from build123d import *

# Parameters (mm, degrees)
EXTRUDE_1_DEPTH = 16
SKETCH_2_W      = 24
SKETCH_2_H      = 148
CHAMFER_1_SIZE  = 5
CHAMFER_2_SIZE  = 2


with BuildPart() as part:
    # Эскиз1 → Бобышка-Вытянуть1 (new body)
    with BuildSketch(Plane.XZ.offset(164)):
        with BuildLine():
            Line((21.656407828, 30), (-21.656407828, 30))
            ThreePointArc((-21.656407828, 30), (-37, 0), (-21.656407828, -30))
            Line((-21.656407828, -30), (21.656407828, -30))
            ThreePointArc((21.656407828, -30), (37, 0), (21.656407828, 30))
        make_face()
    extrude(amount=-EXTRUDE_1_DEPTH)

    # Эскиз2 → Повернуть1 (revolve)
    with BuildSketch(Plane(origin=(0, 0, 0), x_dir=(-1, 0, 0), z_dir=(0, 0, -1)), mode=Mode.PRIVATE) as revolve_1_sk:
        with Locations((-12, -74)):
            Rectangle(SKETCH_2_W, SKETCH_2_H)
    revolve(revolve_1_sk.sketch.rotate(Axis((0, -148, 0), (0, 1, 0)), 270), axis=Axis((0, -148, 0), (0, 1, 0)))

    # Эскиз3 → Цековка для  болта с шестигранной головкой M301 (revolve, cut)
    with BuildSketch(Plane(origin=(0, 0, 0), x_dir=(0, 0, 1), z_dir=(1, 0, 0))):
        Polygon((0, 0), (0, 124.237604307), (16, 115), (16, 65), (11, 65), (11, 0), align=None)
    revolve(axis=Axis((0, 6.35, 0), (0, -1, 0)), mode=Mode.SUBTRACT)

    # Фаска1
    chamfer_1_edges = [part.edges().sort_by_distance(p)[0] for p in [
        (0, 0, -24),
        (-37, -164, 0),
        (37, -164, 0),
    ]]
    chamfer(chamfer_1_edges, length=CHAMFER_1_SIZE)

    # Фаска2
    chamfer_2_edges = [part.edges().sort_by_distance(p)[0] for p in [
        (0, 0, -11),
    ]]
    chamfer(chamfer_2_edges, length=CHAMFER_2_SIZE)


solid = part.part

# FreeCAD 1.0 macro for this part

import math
import FreeCAD as App
import Part
import Sketcher
from FreeCAD import Vector
Q = App.Units.Quantity


def edges_at(feature, points):
    """Names of the edges that pass closest to the given points."""
    edges = feature.Shape.Edges
    near = lambda p: min(range(len(edges)), key=lambda i: edges[i].distToShape(Part.Vertex(*p))[0])
    return sorted({f"Edge{near(p) + 1}" for p in points})

doc = App.newDocument("Part")
params = doc.addObject("Spreadsheet::Sheet", "Params")
for row, (alias, value) in enumerate([
    ("sketch1_radius", "37 mm"),
    ("pad1_length", "16 mm"),
    ("sketch2_width", "24 mm"),
    ("sketch2_height", "148 mm"),
    ("revolution_angle", "360 deg"),
    ("sketch3_width", "65 mm"),
    ("sketch3_width2", "50 mm"),
    ("sketch3_height", "11 mm"),
    ("sketch3_height2", "5 mm"),
    ("groove_angle", "360 deg"),
    ("chamfer_size", "5 mm"),
    ("chamfer2_size", "2 mm"),
], start=1):
    params.set(f"A{row}", alias)
    params.set(f"B{row}", "=" + value)
    params.setAlias(f"B{row}", alias)

body = doc.addObject("PartDesign::Body", "Body")

# Sketch on XZ plane
sketch1 = body.newObject("Sketcher::SketchObject", "Sketch")
sketch1.AttachmentSupport = (doc.getObject("XZ_Plane"), [""])
sketch1.MapMode = "FlatFace"
sketch1.AttachmentOffset = App.Placement(Vector(0, 0, 164), App.Rotation())
sketch1.addGeometry([
    Part.LineSegment(Vector(22, 30, 0), Vector(-22, 30, 0)),
    Part.ArcOfCircle(Part.Circle(Vector(0, 0, 0), Vector(0, 0, 1), 37), math.radians(126), math.radians(234)),
    Part.LineSegment(Vector(-22, -30, 0), Vector(22, -30, 0)),
    Part.ArcOfCircle(Part.Circle(Vector(0, 0, 0), Vector(0, 0, 1), 37), math.radians(-54), math.radians(54)),
], False)
sketch1.addConstraint([
    Sketcher.Constraint("Coincident", 0, 2, 1, 1),
    Sketcher.Constraint("Coincident", 1, 2, 2, 1),
    Sketcher.Constraint("Coincident", 2, 2, 3, 1),
    Sketcher.Constraint("Coincident", 3, 2, 0, 1),
    Sketcher.Constraint("Horizontal", 0),
    Sketcher.Constraint("Horizontal", 2),
    Sketcher.Constraint("Coincident", 1, 3, -1, 1),
    Sketcher.Constraint("Coincident", 3, 3, -1, 1),
    Sketcher.Constraint("Equal", 1, 3),
    Sketcher.Constraint("Vertical", 0, 2, 1, 2),
    Sketcher.Constraint("Radius", 1, Q("37 mm")),
    Sketcher.Constraint("DistanceY", -1, 1, 0, 2, Q("30 mm")),
])
sketch1.setExpression("Constraints[10]", "Params.sketch1_radius")
pad1 = body.newObject("PartDesign::Pad", "Pad")
pad1.Profile = sketch1
pad1.setExpression("Length", "Params.pad1_length")
pad1.Reversed = True

# Sketch on XY plane
sketch2 = body.newObject("Sketcher::SketchObject", "Sketch001")
sketch2.AttachmentSupport = (doc.getObject("XY_Plane"), [""])
sketch2.MapMode = "FlatFace"
sketch2.addGeometry([
    Part.LineSegment(Vector(24, 0, 0), Vector(24, -148, 0)),
    Part.LineSegment(Vector(24, -148, 0), Vector(0, -148, 0)),
    Part.LineSegment(Vector(0, -148, 0), Vector(0, 0, 0)),
    Part.LineSegment(Vector(0, 0, 0), Vector(24, 0, 0)),
], False)
sketch2.addConstraint([
    Sketcher.Constraint("Coincident", 0, 2, 1, 1),
    Sketcher.Constraint("Coincident", 1, 2, 2, 1),
    Sketcher.Constraint("Coincident", 2, 2, 3, 1),
    Sketcher.Constraint("Coincident", 3, 2, 0, 1),
    Sketcher.Constraint("Vertical", 0),
    Sketcher.Constraint("Horizontal", 1),
    Sketcher.Constraint("Vertical", 2),
    Sketcher.Constraint("Horizontal", 3),
    Sketcher.Constraint("Coincident", 2, 2, -1, 1),
    Sketcher.Constraint("DistanceX", 1, 2, 1, 1, Q("24 mm")),
    Sketcher.Constraint("DistanceY", 0, 2, 0, 1, Q("148 mm")),
])
sketch2.setExpression("Constraints[9]", "Params.sketch2_width")
sketch2.setExpression("Constraints[10]", "Params.sketch2_height")
revolution = body.newObject("PartDesign::Revolution", "Revolution")
revolution.Profile = sketch2
revolution.ReferenceAxis = (sketch2, ["V_Axis"])
revolution.setExpression("Angle", "Params.revolution_angle")

# Sketch on YZ plane
sketch3 = body.newObject("Sketcher::SketchObject", "Sketch002")
sketch3.AttachmentSupport = (doc.getObject("YZ_Plane"), [""])
sketch3.MapMode = "FlatFace"
sketch3.addGeometry([
    Part.LineSegment(Vector(-124, 0, 0), Vector(0, 0, 0)),  # 0
    Part.LineSegment(Vector(0, 0, 0), Vector(0, 11, 0)),  # 1
    Part.LineSegment(Vector(0, 11, 0), Vector(-65, 11, 0)),  # 2
    Part.LineSegment(Vector(-65, 11, 0), Vector(-65, 16, 0)),  # 3
    Part.LineSegment(Vector(-65, 16, 0), Vector(-115, 16, 0)),  # 4
    Part.LineSegment(Vector(-115, 16, 0), Vector(-124, 0, 0)),  # 5
], False)
sketch3.addConstraint([
    Sketcher.Constraint("Coincident", 0, 2, 1, 1),
    Sketcher.Constraint("Coincident", 1, 2, 2, 1),
    Sketcher.Constraint("Coincident", 2, 2, 3, 1),
    Sketcher.Constraint("Coincident", 3, 2, 4, 1),
    Sketcher.Constraint("Coincident", 4, 2, 5, 1),
    Sketcher.Constraint("Coincident", 5, 2, 0, 1),
    Sketcher.Constraint("Horizontal", 0),
    Sketcher.Constraint("Vertical", 1),
    Sketcher.Constraint("Horizontal", 2),
    Sketcher.Constraint("Vertical", 3),
    Sketcher.Constraint("Horizontal", 4),
    Sketcher.Constraint("Coincident", 0, 2, -1, 1),
    Sketcher.Constraint("DistanceX", 2, 2, 2, 1, Q("65 mm")),
    Sketcher.Constraint("DistanceX", 4, 2, 4, 1, Q("50 mm")),
    Sketcher.Constraint("DistanceY", 1, 1, 1, 2, Q("11 mm")),
    Sketcher.Constraint("DistanceY", 3, 1, 3, 2, Q("5 mm")),
    Sketcher.Constraint("Angle", 5, Q("-120 deg")),
])
sketch3.setExpression("Constraints[12]", "Params.sketch3_width")
sketch3.setExpression("Constraints[13]", "Params.sketch3_width2")
sketch3.setExpression("Constraints[14]", "Params.sketch3_height")
sketch3.setExpression("Constraints[15]", "Params.sketch3_height2")
groove = body.newObject("PartDesign::Groove", "Groove")
groove.Profile = sketch3
groove.ReferenceAxis = (sketch3, ["H_Axis"])
groove.setExpression("Angle", "Params.groove_angle")
doc.recompute()

chamfer = body.newObject("PartDesign::Chamfer", "Chamfer")
chamfer.Base = (groove, edges_at(groove, [(0, 0, -24), (-37, -164, 0), (37, -164, 0)]))
chamfer.setExpression("Size", "Params.chamfer_size")
doc.recompute()

chamfer2 = body.newObject("PartDesign::Chamfer", "Chamfer001")
chamfer2.Base = (chamfer, edges_at(chamfer, [(0, 0, -11)]))
chamfer2.setExpression("Size", "Params.chamfer2_size")

doc.recompute()
